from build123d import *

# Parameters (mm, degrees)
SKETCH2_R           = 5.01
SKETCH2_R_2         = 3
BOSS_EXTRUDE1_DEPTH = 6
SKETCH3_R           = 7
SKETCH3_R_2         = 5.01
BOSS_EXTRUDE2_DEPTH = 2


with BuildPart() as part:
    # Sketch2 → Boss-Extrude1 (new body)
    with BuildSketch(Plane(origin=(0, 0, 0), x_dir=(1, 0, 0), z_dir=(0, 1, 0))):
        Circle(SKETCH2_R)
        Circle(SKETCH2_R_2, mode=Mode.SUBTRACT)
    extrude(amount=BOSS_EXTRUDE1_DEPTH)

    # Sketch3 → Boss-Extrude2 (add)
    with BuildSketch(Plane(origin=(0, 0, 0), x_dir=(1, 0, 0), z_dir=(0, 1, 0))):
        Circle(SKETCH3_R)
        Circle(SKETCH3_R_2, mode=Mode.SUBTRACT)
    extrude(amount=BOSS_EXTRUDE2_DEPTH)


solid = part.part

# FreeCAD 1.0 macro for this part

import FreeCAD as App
import Part
import Sketcher
from FreeCAD import Vector

doc = App.newDocument("Part")
params = doc.addObject("Spreadsheet::Sheet", "Params")
for row, (alias, value) in enumerate([
    ("sketch1_diameter", "6 mm"),
    ("sketch1_diameter2", "10.02 mm"),
    ("pad1_length", "6 mm"),
    ("sketch2_diameter", "14 mm"),
    ("sketch2_diameter2", "10.02 mm"),
    ("pad2_length", "2 mm"),
], start=1):
    params.set(f"A{row}", alias)
    params.set(f"B{row}", "=" + value)
    params.setAlias(f"B{row}", alias)

body = doc.addObject("PartDesign::Body", "Body")

# Sketch on XZ plane
sketch1 = body.newObject("Sketcher::SketchObject", "Sketch")
sketch1.AttachmentSupport = (doc.getObject("XZ_Plane"), [""])
sketch1.MapMode = "FlatFace"
sketch1.addGeometry([
    Part.Circle(Vector(0, 0, 0), Vector(0, 0, 1), 5),
    Part.Circle(Vector(0, 0, 0), Vector(0, 0, 1), 3),
], False)
sketch1.addConstraint([
    Sketcher.Constraint("Coincident", 0, 3, -1, 1),
    Sketcher.Constraint("Coincident", 1, 3, -1, 1),
    Sketcher.Constraint("Diameter", 1, 6.0),
    Sketcher.Constraint("Diameter", 0, 10.02),
])
sketch1.setExpression("Constraints[2]", "Params.sketch1_diameter")
sketch1.setExpression("Constraints[3]", "Params.sketch1_diameter2")
pad1 = body.newObject("PartDesign::Pad", "Pad")
pad1.Profile = sketch1
pad1.setExpression("Length", "Params.pad1_length")
pad1.Reversed = True

# Sketch on XZ plane
sketch2 = body.newObject("Sketcher::SketchObject", "Sketch001")
sketch2.AttachmentSupport = (doc.getObject("XZ_Plane"), [""])
sketch2.MapMode = "FlatFace"
sketch2.addGeometry([
    Part.Circle(Vector(0, 0, 0), Vector(0, 0, 1), 7),
    Part.Circle(Vector(0, 0, 0), Vector(0, 0, 1), 5),
], False)
sketch2.addConstraint([
    Sketcher.Constraint("Coincident", 0, 3, -1, 1),
    Sketcher.Constraint("Coincident", 1, 3, -1, 1),
    Sketcher.Constraint("Diameter", 0, 14.0),
    Sketcher.Constraint("Diameter", 1, 10.02),
])
sketch2.setExpression("Constraints[2]", "Params.sketch2_diameter")
sketch2.setExpression("Constraints[3]", "Params.sketch2_diameter2")
pad2 = body.newObject("PartDesign::Pad", "Pad001")
pad2.Profile = sketch2
pad2.setExpression("Length", "Params.pad2_length")
pad2.Reversed = True

doc.recompute()
